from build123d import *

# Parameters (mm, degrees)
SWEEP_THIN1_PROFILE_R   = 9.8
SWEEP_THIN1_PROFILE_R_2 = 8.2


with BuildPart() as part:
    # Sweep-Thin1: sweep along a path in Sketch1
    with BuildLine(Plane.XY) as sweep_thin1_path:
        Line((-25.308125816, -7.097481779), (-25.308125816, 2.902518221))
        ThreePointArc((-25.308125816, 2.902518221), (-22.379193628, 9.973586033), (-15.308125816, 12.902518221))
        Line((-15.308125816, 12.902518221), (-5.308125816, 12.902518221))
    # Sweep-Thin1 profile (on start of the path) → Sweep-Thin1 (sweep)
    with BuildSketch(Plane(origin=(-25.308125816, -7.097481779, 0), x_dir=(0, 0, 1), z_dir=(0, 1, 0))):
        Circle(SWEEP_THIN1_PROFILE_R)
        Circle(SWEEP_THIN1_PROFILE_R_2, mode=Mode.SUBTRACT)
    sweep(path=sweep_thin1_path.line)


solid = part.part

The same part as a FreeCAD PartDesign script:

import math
import FreeCAD as App
import Part
import Sketcher
Q = App.Units.Quantity

doc = App.newDocument("Part")
body = doc.addObject("PartDesign::Body", "Body")

# Sketch on XZ plane
sketch1 = body.newObject("Sketcher::SketchObject", "Sketch")
sketch1.AttachmentSupport = (doc.getObject("XZ_Plane"), [""])
sketch1.MapMode = "FlatFace"
sketch1.AttachmentOffset = App.Placement(App.Vector(0, 0, 7.097482), App.Rotation())
sketch1.addGeometry([
    Part.Circle(App.Vector(-25, 0, 0), App.Vector(0, 0, 1), 10),
    Part.Circle(App.Vector(-25, 0, 0), App.Vector(0, 0, 1), 8),
], False)
sketch1.addConstraint([
    Sketcher.Constraint("Coincident", 1, 3, 0, 3),
    Sketcher.Constraint("PointOnObject", 0, 3, -1),
    Sketcher.Constraint("Diameter", 0, Q("19.6 mm")),
    Sketcher.Constraint("Diameter", 1, Q("16.4 mm")),
    Sketcher.Constraint("DistanceX", 0, 3, -1, 1, Q("25.308126 mm")),
])

# Sketch on XY plane
sketch2 = body.newObject("Sketcher::SketchObject", "Sketch001")
sketch2.AttachmentSupport = (doc.getObject("XY_Plane"), [""])
sketch2.MapMode = "FlatFace"
sketch2.addGeometry([
    Part.LineSegment(App.Vector(-25, -7, 0), App.Vector(-25, 3, 0)),
    Part.ArcOfCircle(Part.Circle(App.Vector(-15, 3, 0), App.Vector(0, 0, 1), 10), math.radians(90), math.radians(180)),
    Part.LineSegment(App.Vector(-15, 13, 0), App.Vector(-5, 13, 0)),
], False)
sketch2.addConstraint([
    Sketcher.Constraint("Tangent", 0, 2, 1, 2),
    Sketcher.Constraint("Tangent", 1, 1, 2, 1),
    Sketcher.Constraint("Vertical", 0),
    Sketcher.Constraint("Horizontal", 2),
    Sketcher.Constraint("Equal", 2, 0),
    Sketcher.Constraint("Radius", 1, Q("10 mm")),
    Sketcher.Constraint("DistanceX", 2, 1, 2, 2, Q("10 mm")),
    Sketcher.Constraint("DistanceY", -1, 1, 1, 3, Q("2.902518 mm")),
    Sketcher.Constraint("DistanceX", 1, 3, -1, 1, Q("15.308126 mm")),
])
doc.recompute()

additivepipe = body.newObject("PartDesign::AdditivePipe", "AdditivePipe")
additivepipe.Profile = sketch1
additivepipe.Spine = (sketch2, ["Edge1", "Edge2", "Edge3"])

doc.recompute()
